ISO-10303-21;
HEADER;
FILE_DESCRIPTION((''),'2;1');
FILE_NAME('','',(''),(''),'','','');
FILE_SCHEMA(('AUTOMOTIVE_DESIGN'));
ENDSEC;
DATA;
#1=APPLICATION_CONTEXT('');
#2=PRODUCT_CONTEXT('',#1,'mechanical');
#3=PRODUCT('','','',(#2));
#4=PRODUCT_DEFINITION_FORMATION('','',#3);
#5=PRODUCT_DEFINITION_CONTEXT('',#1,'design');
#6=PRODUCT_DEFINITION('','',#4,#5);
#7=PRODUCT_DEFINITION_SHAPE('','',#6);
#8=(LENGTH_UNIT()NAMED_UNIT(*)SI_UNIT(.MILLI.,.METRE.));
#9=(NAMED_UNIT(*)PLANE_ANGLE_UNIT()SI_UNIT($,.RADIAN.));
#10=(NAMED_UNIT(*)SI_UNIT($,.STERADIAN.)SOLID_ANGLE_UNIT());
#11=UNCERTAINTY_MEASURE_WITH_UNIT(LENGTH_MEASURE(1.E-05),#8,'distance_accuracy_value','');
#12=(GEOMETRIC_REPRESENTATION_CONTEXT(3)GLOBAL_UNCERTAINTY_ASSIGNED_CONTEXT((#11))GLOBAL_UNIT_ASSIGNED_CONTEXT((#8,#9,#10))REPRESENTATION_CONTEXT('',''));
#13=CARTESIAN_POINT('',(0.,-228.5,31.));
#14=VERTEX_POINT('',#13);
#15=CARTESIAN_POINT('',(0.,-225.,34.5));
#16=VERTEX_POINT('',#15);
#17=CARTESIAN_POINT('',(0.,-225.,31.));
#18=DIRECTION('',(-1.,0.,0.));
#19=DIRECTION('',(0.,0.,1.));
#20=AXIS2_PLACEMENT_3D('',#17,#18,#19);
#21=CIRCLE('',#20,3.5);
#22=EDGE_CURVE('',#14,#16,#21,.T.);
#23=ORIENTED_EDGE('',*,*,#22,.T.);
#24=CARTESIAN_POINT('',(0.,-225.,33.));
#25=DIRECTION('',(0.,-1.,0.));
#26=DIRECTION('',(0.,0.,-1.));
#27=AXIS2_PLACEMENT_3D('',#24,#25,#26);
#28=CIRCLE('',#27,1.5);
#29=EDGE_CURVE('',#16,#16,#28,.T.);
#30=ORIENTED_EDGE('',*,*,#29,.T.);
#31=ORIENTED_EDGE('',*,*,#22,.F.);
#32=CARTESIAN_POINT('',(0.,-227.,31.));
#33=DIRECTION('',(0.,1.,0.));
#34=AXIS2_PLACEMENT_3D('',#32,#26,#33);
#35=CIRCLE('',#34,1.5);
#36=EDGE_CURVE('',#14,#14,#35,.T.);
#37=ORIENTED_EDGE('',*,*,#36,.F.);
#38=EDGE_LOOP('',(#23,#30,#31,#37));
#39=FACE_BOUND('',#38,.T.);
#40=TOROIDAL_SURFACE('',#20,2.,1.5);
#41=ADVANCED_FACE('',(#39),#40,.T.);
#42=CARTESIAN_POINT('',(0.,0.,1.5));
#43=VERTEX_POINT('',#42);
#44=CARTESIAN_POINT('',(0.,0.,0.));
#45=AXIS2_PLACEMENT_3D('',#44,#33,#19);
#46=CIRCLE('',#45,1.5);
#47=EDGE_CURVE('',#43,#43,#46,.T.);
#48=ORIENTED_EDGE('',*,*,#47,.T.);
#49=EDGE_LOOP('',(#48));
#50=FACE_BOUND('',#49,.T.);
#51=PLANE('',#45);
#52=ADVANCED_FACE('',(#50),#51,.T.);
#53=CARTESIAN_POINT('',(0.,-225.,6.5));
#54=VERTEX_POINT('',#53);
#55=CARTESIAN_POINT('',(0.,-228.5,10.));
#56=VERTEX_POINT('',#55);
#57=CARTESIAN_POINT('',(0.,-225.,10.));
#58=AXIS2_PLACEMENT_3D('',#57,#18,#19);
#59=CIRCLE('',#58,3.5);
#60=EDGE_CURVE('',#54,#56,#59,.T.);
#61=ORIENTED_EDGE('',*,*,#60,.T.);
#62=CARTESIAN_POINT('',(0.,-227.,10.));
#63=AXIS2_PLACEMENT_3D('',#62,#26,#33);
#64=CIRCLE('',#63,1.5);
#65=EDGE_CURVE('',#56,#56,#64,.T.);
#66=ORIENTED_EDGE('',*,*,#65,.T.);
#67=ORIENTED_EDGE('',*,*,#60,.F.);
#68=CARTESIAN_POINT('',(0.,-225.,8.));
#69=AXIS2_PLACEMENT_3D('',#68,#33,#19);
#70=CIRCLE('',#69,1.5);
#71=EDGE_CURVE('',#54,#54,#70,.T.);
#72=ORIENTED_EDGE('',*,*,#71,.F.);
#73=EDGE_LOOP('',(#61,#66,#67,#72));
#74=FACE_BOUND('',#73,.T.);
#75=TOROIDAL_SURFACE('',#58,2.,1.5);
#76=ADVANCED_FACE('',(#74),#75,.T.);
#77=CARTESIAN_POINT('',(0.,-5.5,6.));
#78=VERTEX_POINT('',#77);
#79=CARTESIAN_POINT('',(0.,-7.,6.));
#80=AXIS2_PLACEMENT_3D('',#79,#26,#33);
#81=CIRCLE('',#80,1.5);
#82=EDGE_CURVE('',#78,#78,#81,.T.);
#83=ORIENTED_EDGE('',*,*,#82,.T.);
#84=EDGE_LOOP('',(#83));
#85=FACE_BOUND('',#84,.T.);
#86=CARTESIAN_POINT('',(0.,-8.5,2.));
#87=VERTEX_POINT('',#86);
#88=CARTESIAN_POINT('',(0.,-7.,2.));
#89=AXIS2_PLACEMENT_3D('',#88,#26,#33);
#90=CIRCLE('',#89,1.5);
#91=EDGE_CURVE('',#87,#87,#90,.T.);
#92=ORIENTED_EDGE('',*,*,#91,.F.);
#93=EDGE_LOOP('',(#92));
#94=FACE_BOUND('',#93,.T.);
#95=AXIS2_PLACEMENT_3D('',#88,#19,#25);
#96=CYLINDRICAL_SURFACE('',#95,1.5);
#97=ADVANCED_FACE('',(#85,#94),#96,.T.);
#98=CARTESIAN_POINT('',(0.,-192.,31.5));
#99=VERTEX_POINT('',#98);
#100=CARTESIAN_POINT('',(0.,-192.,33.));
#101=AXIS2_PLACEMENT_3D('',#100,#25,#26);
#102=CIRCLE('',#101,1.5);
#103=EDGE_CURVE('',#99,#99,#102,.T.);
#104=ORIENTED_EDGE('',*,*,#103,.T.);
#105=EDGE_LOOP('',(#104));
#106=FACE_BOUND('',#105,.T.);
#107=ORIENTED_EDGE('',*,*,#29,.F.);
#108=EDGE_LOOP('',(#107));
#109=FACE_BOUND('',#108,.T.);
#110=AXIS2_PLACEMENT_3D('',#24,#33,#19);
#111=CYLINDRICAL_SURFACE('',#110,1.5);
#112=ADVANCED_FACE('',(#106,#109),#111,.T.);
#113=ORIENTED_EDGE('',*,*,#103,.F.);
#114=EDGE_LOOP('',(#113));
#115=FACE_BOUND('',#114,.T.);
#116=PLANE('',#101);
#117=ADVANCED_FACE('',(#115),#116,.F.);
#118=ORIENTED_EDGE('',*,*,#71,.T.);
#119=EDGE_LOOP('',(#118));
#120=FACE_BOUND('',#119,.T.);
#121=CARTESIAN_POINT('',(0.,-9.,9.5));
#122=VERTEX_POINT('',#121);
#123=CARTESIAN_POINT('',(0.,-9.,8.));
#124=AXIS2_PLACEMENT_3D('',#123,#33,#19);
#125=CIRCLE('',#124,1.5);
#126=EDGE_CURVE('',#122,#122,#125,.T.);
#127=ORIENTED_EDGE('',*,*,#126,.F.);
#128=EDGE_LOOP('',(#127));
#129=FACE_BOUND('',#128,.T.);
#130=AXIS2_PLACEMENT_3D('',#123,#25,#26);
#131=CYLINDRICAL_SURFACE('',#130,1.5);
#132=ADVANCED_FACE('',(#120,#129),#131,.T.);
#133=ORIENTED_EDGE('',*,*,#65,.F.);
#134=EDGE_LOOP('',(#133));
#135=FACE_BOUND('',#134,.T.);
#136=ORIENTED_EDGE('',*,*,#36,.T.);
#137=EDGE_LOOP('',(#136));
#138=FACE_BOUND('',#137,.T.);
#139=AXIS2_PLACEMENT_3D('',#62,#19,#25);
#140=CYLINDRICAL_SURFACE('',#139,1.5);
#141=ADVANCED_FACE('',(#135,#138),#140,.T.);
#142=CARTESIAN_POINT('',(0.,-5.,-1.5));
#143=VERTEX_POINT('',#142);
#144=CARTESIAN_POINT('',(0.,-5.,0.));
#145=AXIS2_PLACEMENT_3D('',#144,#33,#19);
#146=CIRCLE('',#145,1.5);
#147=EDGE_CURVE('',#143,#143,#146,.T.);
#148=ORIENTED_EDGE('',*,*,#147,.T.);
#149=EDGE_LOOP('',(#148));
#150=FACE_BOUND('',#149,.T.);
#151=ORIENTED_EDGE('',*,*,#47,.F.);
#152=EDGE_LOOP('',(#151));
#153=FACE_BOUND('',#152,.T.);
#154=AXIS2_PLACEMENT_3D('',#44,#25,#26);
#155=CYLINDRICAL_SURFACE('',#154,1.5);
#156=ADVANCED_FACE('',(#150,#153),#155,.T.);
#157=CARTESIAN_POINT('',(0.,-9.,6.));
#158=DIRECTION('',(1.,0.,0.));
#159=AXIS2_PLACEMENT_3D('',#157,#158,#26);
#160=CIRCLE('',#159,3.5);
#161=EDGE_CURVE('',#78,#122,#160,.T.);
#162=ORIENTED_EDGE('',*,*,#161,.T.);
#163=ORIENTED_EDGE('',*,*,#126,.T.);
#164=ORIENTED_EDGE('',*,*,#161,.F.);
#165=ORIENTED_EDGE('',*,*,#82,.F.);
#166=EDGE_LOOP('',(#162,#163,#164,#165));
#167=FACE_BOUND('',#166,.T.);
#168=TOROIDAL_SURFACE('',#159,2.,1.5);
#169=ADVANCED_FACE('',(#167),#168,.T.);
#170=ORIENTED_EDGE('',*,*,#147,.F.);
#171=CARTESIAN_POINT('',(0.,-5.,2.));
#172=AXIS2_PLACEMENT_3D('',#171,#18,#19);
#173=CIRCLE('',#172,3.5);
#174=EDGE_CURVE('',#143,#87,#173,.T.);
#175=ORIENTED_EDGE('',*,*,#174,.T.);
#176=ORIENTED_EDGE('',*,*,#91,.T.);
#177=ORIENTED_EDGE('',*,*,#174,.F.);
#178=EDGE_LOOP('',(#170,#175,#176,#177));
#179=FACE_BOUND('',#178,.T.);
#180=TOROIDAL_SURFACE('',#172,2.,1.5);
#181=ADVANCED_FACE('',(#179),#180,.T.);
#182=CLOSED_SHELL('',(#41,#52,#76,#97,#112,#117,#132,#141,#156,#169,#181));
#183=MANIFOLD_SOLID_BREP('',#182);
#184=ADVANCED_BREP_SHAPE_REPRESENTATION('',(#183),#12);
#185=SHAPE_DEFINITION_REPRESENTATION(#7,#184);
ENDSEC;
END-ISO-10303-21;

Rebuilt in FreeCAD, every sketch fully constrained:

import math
import FreeCAD as App
import Part
import Sketcher
from FreeCAD import Vector

doc = App.newDocument("Part")
body = doc.addObject("PartDesign::Body", "Body")

sketch1 = doc.addObject("Sketcher::SketchObject", "Sketch")
body.addObject(sketch1)
sketch1.AttachmentSupport = (doc.XZ_Plane, [""])
sketch1.MapMode = "FlatFace"
sketch1.addGeometry(Part.Circle(Vector(0, 0, 0), Vector(0, 0, 1), 1.5), False)
sketch1.addConstraint(Sketcher.Constraint("Coincident", 0, 3, -1, 1))
sketch1.addConstraint(Sketcher.Constraint("Diameter", 0, 3.0))

sketch2 = doc.addObject("Sketcher::SketchObject", "Sketch001")
body.addObject(sketch2)
sketch2.AttachmentSupport = (doc.YZ_Plane, [""])
sketch2.MapMode = "FlatFace"
sketch2.addGeometry(Part.LineSegment(Vector(0, 0, 0), Vector(-5, 0, 0)), False)
sketch2.addGeometry(Part.ArcOfCircle(Part.Circle(Vector(-5, 2, 0), Vector(0, 0, 1), 2), math.radians(-180), math.radians(-90)), False)
sketch2.addGeometry(Part.LineSegment(Vector(-7, 2, 0), Vector(-7, 6, 0)), False)
sketch2.addGeometry(Part.ArcOfCircle(Part.Circle(Vector(-9, 6, 0), Vector(0, 0, 1), 2), math.radians(0), math.radians(90)), False)
sketch2.addGeometry(Part.LineSegment(Vector(-9, 8, 0), Vector(-225, 8, 0)), False)
sketch2.addGeometry(Part.ArcOfCircle(Part.Circle(Vector(-225, 10, 0), Vector(0, 0, 1), 2), math.radians(-180), math.radians(-90)), False)
sketch2.addGeometry(Part.LineSegment(Vector(-227, 10, 0), Vector(-227, 31, 0)), False)
sketch2.addGeometry(Part.ArcOfCircle(Part.Circle(Vector(-225, 31, 0), Vector(0, 0, 1), 2), math.radians(90), math.radians(180)), False)
sketch2.addGeometry(Part.LineSegment(Vector(-225, 33, 0), Vector(-192, 33, 0)), False)
sketch2.addConstraint(Sketcher.Constraint("Tangent", 0, 2, 1, 2))
sketch2.addConstraint(Sketcher.Constraint("Tangent", 1, 1, 2, 1))
sketch2.addConstraint(Sketcher.Constraint("Tangent", 2, 2, 3, 1))
sketch2.addConstraint(Sketcher.Constraint("Tangent", 3, 2, 4, 1))
sketch2.addConstraint(Sketcher.Constraint("Tangent", 4, 2, 5, 2))
sketch2.addConstraint(Sketcher.Constraint("Tangent", 5, 1, 6, 1))
sketch2.addConstraint(Sketcher.Constraint("Tangent", 6, 2, 7, 2))
sketch2.addConstraint(Sketcher.Constraint("Tangent", 7, 1, 8, 1))
sketch2.addConstraint(Sketcher.Constraint("Horizontal", 0))
sketch2.addConstraint(Sketcher.Constraint("Vertical", 2))
sketch2.addConstraint(Sketcher.Constraint("Horizontal", 4))
sketch2.addConstraint(Sketcher.Constraint("Vertical", 6))
sketch2.addConstraint(Sketcher.Constraint("Horizontal", 8))
sketch2.addConstraint(Sketcher.Constraint("Coincident", 0, 1, -1, 1))
sketch2.addConstraint(Sketcher.Constraint("Equal", 1, 3))
sketch2.addConstraint(Sketcher.Constraint("Equal", 3, 5))
sketch2.addConstraint(Sketcher.Constraint("Equal", 5, 7))
sketch2.addConstraint(Sketcher.Constraint("Radius", 1, 2.0))
sketch2.addConstraint(Sketcher.Constraint("DistanceX", 0, 2, 0, 1, 5.0))
sketch2.addConstraint(Sketcher.Constraint("DistanceX", 4, 2, 4, 1, 216.0))
sketch2.addConstraint(Sketcher.Constraint("DistanceX", 8, 1, 8, 2, 33.0))
sketch2.addConstraint(Sketcher.Constraint("DistanceY", 2, 1, 2, 2, 4.0))
sketch2.addConstraint(Sketcher.Constraint("DistanceY", 6, 1, 6, 2, 21.0))
doc.recompute()

additivepipe = doc.addObject("PartDesign::AdditivePipe", "AdditivePipe")
body.addObject(additivepipe)
additivepipe.Profile = sketch1
additivepipe.Spine = (sketch2, ["Edge1", "Edge2", "Edge3", "Edge4", "Edge5", "Edge6", "Edge7", "Edge8", "Edge9"])

doc.recompute()
